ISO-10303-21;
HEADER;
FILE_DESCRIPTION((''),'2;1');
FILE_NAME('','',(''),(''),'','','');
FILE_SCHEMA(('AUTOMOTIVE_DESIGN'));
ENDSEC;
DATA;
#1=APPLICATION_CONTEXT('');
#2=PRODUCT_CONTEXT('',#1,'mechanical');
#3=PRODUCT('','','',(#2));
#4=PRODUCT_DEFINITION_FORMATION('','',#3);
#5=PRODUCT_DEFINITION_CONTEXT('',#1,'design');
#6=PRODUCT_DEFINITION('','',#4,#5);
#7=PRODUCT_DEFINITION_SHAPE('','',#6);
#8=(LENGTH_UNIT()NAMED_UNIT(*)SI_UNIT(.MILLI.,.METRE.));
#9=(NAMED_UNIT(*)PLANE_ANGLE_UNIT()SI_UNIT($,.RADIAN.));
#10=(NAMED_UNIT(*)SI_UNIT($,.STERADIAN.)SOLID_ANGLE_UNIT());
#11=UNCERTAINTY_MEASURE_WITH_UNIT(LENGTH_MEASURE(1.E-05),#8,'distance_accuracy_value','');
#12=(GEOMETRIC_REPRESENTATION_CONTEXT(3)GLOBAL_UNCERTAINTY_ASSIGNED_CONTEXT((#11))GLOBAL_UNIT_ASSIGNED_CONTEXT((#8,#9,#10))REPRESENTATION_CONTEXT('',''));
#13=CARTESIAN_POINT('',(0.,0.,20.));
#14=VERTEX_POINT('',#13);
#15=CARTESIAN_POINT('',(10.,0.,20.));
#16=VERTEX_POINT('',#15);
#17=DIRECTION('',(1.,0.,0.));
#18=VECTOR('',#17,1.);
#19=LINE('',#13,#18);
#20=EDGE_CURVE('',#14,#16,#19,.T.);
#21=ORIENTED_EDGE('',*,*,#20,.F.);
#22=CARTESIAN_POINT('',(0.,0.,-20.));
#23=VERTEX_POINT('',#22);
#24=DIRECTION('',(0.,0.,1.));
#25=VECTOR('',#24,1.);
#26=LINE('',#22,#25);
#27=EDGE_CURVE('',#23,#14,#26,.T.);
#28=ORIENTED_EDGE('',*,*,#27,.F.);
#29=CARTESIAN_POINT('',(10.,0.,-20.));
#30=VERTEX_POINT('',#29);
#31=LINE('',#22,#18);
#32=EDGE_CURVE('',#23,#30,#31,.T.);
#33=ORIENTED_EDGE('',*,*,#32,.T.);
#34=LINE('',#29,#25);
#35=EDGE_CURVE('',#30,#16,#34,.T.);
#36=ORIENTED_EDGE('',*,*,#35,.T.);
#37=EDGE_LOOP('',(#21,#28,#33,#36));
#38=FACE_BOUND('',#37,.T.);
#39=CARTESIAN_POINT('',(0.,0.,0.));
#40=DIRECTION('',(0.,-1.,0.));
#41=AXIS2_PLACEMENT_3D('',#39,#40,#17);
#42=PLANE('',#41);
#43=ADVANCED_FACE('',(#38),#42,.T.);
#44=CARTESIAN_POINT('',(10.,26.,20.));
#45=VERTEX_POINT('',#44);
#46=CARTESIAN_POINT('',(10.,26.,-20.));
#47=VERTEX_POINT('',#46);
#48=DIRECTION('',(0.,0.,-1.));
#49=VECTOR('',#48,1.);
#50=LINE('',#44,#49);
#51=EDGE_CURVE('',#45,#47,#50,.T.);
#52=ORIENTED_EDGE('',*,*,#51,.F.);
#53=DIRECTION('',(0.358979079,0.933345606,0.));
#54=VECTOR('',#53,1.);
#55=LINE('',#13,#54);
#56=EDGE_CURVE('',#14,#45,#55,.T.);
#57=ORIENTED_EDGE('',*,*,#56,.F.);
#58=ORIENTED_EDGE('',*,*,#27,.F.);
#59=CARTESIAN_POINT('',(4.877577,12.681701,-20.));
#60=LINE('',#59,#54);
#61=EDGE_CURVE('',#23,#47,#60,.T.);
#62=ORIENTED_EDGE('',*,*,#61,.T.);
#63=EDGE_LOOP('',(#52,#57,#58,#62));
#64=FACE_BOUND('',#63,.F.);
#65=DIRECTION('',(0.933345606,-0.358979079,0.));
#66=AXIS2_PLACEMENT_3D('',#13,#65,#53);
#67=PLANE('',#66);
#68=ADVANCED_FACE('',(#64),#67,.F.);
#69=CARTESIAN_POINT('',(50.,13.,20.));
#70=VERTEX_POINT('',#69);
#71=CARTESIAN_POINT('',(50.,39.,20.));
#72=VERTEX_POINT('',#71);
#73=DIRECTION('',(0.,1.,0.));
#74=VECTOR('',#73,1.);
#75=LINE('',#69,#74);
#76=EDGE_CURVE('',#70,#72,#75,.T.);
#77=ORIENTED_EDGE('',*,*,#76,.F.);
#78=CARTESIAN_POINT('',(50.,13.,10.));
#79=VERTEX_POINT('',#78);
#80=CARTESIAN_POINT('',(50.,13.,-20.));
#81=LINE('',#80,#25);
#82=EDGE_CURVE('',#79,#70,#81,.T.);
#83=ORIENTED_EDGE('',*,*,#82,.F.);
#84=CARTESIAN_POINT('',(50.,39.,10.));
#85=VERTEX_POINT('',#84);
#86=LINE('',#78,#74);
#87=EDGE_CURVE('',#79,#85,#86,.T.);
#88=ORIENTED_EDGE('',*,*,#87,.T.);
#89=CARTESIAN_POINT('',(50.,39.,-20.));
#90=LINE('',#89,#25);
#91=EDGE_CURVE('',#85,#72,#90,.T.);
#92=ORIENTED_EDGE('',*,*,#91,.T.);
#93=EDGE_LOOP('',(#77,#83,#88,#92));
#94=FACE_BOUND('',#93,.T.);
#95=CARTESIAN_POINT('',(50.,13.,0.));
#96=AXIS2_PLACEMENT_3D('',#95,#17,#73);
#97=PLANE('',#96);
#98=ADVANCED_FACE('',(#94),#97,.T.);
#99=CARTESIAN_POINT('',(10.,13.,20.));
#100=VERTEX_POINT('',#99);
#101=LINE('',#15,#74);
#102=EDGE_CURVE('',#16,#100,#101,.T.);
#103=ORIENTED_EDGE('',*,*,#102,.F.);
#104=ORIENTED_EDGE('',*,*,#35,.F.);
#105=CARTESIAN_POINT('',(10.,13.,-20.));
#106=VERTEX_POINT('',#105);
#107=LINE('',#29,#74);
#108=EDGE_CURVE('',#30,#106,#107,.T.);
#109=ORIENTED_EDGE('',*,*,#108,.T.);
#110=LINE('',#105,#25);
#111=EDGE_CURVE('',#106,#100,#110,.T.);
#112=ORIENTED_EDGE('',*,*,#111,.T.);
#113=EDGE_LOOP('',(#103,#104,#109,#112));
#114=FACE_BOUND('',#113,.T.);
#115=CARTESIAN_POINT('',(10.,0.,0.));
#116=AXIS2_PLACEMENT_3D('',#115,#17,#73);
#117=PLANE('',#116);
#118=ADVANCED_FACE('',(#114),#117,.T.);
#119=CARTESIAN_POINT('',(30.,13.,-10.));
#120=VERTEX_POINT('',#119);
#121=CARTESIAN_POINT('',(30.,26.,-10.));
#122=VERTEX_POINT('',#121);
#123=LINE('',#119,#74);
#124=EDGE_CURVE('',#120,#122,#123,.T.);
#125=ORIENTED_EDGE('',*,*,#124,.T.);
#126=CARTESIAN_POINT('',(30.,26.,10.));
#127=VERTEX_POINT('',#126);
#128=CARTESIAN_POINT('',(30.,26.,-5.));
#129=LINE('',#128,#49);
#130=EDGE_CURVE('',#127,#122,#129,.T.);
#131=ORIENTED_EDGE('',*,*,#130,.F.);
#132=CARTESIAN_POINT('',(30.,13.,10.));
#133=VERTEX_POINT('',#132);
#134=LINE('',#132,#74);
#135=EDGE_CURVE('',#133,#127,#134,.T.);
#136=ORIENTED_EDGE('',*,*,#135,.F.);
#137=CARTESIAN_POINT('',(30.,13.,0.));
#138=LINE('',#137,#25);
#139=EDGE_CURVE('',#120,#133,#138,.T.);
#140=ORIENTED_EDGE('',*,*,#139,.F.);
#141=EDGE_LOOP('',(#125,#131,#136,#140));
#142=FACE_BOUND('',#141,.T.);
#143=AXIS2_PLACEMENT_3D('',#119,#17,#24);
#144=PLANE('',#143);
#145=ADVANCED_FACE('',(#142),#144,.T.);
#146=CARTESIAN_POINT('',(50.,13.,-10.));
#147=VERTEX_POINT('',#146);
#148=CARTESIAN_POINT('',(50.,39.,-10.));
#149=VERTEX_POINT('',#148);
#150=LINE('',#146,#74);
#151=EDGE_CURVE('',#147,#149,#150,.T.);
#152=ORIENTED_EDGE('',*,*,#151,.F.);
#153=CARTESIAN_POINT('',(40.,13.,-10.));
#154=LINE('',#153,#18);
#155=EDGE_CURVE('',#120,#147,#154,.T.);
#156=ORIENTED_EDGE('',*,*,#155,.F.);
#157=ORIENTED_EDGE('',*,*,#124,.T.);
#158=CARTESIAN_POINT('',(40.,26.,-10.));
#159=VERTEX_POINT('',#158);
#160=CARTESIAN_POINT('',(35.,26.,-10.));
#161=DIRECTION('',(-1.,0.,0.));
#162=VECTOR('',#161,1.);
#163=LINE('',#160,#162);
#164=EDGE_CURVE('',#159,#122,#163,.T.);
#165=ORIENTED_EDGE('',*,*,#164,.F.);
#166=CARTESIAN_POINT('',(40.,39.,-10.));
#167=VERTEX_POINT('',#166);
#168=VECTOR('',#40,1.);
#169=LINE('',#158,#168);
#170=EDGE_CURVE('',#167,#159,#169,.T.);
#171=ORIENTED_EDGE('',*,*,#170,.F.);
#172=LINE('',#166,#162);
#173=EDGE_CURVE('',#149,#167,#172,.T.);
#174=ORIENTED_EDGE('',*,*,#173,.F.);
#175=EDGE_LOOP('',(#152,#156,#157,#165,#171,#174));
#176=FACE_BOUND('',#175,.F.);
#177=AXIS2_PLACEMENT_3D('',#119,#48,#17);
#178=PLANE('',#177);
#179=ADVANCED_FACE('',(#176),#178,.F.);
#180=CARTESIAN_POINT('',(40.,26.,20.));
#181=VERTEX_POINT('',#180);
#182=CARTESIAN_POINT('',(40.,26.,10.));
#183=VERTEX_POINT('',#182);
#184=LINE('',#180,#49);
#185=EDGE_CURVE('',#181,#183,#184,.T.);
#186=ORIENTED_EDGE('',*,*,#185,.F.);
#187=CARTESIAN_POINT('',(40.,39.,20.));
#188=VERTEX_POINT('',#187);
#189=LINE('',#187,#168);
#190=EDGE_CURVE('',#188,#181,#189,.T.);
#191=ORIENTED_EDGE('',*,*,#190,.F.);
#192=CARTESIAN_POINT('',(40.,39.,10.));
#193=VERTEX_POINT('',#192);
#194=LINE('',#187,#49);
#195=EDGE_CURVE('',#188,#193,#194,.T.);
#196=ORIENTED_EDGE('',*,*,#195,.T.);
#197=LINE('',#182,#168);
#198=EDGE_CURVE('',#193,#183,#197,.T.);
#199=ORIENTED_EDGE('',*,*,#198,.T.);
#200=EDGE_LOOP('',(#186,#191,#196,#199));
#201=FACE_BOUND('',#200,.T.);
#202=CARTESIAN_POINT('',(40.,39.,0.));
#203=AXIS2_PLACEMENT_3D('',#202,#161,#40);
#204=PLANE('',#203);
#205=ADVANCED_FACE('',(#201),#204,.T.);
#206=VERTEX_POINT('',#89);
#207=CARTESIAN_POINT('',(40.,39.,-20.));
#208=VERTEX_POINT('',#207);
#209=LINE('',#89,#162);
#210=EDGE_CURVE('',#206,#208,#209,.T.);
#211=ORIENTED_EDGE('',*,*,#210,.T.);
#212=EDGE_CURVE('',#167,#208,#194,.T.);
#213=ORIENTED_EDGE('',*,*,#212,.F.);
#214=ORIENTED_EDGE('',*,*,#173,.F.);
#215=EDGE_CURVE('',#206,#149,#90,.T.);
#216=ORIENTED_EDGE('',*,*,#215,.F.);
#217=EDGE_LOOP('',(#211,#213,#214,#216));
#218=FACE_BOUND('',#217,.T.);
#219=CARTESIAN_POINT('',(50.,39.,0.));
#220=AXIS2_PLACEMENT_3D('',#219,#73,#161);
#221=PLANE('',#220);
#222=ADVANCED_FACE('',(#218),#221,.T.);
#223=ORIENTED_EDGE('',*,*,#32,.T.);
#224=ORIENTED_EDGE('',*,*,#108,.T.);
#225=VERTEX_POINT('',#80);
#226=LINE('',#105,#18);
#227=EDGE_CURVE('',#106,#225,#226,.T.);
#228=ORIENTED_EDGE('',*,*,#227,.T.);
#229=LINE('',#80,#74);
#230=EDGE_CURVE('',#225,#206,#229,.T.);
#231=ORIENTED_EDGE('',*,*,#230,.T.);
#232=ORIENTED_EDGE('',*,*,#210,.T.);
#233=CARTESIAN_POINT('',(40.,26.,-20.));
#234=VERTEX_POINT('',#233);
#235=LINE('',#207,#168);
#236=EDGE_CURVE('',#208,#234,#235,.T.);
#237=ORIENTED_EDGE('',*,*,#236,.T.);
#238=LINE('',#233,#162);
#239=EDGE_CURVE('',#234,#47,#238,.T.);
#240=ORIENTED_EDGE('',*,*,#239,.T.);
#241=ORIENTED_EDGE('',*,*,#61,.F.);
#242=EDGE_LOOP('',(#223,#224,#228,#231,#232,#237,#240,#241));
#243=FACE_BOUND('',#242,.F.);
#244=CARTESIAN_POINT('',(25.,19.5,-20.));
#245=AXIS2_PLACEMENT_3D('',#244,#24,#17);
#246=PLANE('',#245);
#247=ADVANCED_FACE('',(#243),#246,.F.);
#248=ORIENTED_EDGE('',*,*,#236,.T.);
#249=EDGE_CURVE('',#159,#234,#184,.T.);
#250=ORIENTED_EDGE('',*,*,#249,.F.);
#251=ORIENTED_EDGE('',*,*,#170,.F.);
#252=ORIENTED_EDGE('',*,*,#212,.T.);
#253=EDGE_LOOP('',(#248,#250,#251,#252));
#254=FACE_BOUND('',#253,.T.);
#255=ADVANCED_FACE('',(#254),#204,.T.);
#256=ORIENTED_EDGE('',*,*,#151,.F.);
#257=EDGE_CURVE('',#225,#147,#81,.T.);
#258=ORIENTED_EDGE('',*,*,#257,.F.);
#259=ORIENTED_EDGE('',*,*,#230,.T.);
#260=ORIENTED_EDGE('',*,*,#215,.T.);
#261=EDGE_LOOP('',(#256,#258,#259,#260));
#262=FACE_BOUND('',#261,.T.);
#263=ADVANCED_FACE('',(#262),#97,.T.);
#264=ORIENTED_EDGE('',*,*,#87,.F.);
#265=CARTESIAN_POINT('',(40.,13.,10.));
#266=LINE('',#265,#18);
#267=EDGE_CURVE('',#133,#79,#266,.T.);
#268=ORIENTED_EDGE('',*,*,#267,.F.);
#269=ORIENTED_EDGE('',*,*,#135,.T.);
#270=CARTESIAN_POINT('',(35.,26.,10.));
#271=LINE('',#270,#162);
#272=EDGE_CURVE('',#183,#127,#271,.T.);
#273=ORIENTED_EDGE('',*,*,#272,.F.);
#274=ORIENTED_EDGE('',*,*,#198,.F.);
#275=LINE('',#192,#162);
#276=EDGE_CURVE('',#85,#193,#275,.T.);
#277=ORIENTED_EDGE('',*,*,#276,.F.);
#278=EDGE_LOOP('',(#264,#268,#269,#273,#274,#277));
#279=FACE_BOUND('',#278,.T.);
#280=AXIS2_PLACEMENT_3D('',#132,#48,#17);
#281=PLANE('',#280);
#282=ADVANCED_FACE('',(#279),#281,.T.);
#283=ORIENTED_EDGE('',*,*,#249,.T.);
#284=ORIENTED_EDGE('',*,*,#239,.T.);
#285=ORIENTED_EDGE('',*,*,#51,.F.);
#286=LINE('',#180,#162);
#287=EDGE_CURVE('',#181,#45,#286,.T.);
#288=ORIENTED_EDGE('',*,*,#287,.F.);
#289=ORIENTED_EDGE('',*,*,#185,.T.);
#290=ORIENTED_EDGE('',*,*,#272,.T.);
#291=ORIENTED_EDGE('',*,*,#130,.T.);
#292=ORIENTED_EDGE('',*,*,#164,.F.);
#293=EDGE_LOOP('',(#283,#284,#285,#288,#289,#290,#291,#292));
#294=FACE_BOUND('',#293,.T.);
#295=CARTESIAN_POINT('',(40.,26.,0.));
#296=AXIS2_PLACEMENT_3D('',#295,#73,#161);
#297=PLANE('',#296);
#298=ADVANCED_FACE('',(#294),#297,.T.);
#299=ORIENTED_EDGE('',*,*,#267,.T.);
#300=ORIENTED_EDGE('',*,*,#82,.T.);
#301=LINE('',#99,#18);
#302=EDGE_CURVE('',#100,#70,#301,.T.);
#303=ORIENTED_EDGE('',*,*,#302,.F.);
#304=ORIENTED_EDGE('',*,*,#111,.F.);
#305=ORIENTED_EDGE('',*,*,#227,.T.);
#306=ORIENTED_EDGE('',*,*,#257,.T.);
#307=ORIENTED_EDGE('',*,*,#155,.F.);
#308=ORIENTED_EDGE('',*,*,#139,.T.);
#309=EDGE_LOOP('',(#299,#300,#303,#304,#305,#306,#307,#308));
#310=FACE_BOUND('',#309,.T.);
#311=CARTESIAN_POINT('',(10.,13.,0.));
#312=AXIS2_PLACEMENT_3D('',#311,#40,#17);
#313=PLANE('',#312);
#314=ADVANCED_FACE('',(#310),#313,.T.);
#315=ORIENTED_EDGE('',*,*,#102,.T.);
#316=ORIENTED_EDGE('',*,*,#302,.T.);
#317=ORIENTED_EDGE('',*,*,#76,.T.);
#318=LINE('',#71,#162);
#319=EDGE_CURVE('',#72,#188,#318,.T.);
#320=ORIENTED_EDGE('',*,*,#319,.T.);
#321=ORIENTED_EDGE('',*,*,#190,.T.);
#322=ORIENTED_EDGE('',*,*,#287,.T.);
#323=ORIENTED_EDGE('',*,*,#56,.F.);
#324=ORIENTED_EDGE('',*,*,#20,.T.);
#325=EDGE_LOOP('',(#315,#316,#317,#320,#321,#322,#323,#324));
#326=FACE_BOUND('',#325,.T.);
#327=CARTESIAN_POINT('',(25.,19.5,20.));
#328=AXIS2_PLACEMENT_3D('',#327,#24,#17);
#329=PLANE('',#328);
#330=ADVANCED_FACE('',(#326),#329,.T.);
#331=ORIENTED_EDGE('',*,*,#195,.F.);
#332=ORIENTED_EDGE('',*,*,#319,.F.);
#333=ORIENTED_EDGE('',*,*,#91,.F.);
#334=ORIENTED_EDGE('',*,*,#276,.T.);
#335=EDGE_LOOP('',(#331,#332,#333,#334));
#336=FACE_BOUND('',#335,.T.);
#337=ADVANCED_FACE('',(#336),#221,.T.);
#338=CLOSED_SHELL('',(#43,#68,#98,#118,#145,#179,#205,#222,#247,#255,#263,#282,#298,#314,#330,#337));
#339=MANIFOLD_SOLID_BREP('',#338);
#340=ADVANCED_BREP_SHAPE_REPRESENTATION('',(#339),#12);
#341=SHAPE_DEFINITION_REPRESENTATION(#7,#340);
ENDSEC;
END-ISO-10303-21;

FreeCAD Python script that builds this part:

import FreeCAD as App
import Part
import Sketcher

V = App.Vector

doc = App.newDocument("Part")
body = doc.addObject("PartDesign::Body", "Body")

sketch1 = body.newObject("Sketcher::SketchObject", "Sketch")
sketch1.AttachmentSupport = (doc.getObject("XY_Plane"), [""])
sketch1.MapMode = "FlatFace"
sketch1.addGeometry(Part.LineSegment(V(0, 26, 0), V(0, 0, 0)), False)
sketch1.addGeometry(Part.LineSegment(V(0, 0, 0), V(10, 0, 0)), False)
sketch1.addGeometry(Part.LineSegment(V(10, 0, 0), V(10, 13, 0)), False)
sketch1.addGeometry(Part.LineSegment(V(10, 13, 0), V(50, 13, 0)), False)
sketch1.addGeometry(Part.LineSegment(V(50, 13, 0), V(50, 39, 0)), False)
sketch1.addGeometry(Part.LineSegment(V(50, 39, 0), V(40, 39, 0)), False)
sketch1.addGeometry(Part.LineSegment(V(40, 39, 0), V(40, 26, 0)), False)
sketch1.addGeometry(Part.LineSegment(V(40, 26, 0), V(0, 26, 0)), False)
sketch1.addConstraint(Sketcher.Constraint("Coincident", 0, 2, 1, 1))
sketch1.addConstraint(Sketcher.Constraint("Coincident", 1, 2, 2, 1))
sketch1.addConstraint(Sketcher.Constraint("Coincident", 2, 2, 3, 1))
sketch1.addConstraint(Sketcher.Constraint("Coincident", 3, 2, 4, 1))
sketch1.addConstraint(Sketcher.Constraint("Coincident", 4, 2, 5, 1))
sketch1.addConstraint(Sketcher.Constraint("Coincident", 5, 2, 6, 1))
sketch1.addConstraint(Sketcher.Constraint("Coincident", 6, 2, 7, 1))
sketch1.addConstraint(Sketcher.Constraint("Coincident", 7, 2, 0, 1))
sketch1.addConstraint(Sketcher.Constraint("Vertical", 0))
sketch1.addConstraint(Sketcher.Constraint("Horizontal", 1))
sketch1.addConstraint(Sketcher.Constraint("Vertical", 2))
sketch1.addConstraint(Sketcher.Constraint("Horizontal", 3))
sketch1.addConstraint(Sketcher.Constraint("Vertical", 4))
sketch1.addConstraint(Sketcher.Constraint("Horizontal", 5))
sketch1.addConstraint(Sketcher.Constraint("Vertical", 6))
sketch1.addConstraint(Sketcher.Constraint("Horizontal", 7))
sketch1.addConstraint(Sketcher.Constraint("Coincident", 0, 2, -1, 1))
sketch1.addConstraint(Sketcher.Constraint("Equal", 1, 5))
sketch1.addConstraint(Sketcher.Constraint("Equal", 0, 4))
sketch1.addConstraint(Sketcher.Constraint("DistanceX", 1, 1, 1, 2, 10.0))
sketch1.addConstraint(Sketcher.Constraint("DistanceX", 3, 1, 3, 2, 40.0))
sketch1.addConstraint(Sketcher.Constraint("DistanceY", 0, 2, 0, 1, 26.0))
sketch1.addConstraint(Sketcher.Constraint("DistanceY", 2, 1, 2, 2, 13.0))
pad1 = body.newObject("PartDesign::Pad", "Pad")
pad1.Profile = sketch1
pad1.Length = 40
pad1.Midplane = True

sketch2 = body.newObject("Sketcher::SketchObject", "Sketch001")
sketch2.AttachmentSupport = (doc.getObject("XZ_Plane"), [""])
sketch2.MapMode = "FlatFace"
sketch2.AttachmentOffset = App.Placement(V(0, 0, -13), App.Rotation())
sketch2.addGeometry(Part.LineSegment(V(30, 10, 0), V(30, -10, 0)), False)
sketch2.addGeometry(Part.LineSegment(V(30, -10, 0), V(50, -10, 0)), False)
sketch2.addGeometry(Part.LineSegment(V(50, -10, 0), V(50, 10, 0)), False)
sketch2.addGeometry(Part.LineSegment(V(50, 10, 0), V(30, 10, 0)), False)
sketch2.addConstraint(Sketcher.Constraint("Coincident", 0, 2, 1, 1))
sketch2.addConstraint(Sketcher.Constraint("Coincident", 1, 2, 2, 1))
sketch2.addConstraint(Sketcher.Constraint("Coincident", 2, 2, 3, 1))
sketch2.addConstraint(Sketcher.Constraint("Coincident", 3, 2, 0, 1))
sketch2.addConstraint(Sketcher.Constraint("Vertical", 0))
sketch2.addConstraint(Sketcher.Constraint("Horizontal", 1))
sketch2.addConstraint(Sketcher.Constraint("Vertical", 2))
sketch2.addConstraint(Sketcher.Constraint("Horizontal", 3))
sketch2.addConstraint(Sketcher.Constraint("Equal", 3, 0))
sketch2.addConstraint(Sketcher.Constraint("DistanceX", 1, 1, 1, 2, 20.0))
sketch2.addConstraint(Sketcher.Constraint("DistanceX", -1, 1, 0, 2, 30.0))
sketch2.addConstraint(Sketcher.Constraint("DistanceY", 0, 2, -1, 1, 10.0))
pocket1 = body.newObject("PartDesign::Pocket", "Pocket")
pocket1.Profile = sketch2
pocket1.Type = "ThroughAll"

sketch3 = body.newObject("Sketcher::SketchObject", "Sketch002")
sketch3.AttachmentSupport = (doc.getObject("XY_Plane"), [""])
sketch3.MapMode = "FlatFace"
sketch3.AttachmentOffset = App.Placement(V(0, 0, 20), App.Rotation())
sketch3.addGeometry(Part.LineSegment(V(0, 0, 0), V(10, 26, 0)), False)
sketch3.addGeometry(Part.LineSegment(V(10, 26, 0), V(0, 26, 0)), False)
sketch3.addGeometry(Part.LineSegment(V(0, 26, 0), V(0, 0, 0)), False)
sketch3.addConstraint(Sketcher.Constraint("Coincident", 0, 2, 1, 1))
sketch3.addConstraint(Sketcher.Constraint("Coincident", 1, 2, 2, 1))
sketch3.addConstraint(Sketcher.Constraint("Coincident", 2, 2, 0, 1))
sketch3.addConstraint(Sketcher.Constraint("Horizontal", 1))
sketch3.addConstraint(Sketcher.Constraint("Vertical", 2))
sketch3.addConstraint(Sketcher.Constraint("Coincident", 2, 2, -1, 1))
sketch3.addConstraint(Sketcher.Constraint("DistanceX", 1, 2, 1, 1, 10.0))
sketch3.addConstraint(Sketcher.Constraint("DistanceY", 2, 2, 2, 1, 26.0))
pocket2 = body.newObject("PartDesign::Pocket", "Pocket001")
pocket2.Profile = sketch3
pocket2.Type = "ThroughAll"

doc.recompute()
